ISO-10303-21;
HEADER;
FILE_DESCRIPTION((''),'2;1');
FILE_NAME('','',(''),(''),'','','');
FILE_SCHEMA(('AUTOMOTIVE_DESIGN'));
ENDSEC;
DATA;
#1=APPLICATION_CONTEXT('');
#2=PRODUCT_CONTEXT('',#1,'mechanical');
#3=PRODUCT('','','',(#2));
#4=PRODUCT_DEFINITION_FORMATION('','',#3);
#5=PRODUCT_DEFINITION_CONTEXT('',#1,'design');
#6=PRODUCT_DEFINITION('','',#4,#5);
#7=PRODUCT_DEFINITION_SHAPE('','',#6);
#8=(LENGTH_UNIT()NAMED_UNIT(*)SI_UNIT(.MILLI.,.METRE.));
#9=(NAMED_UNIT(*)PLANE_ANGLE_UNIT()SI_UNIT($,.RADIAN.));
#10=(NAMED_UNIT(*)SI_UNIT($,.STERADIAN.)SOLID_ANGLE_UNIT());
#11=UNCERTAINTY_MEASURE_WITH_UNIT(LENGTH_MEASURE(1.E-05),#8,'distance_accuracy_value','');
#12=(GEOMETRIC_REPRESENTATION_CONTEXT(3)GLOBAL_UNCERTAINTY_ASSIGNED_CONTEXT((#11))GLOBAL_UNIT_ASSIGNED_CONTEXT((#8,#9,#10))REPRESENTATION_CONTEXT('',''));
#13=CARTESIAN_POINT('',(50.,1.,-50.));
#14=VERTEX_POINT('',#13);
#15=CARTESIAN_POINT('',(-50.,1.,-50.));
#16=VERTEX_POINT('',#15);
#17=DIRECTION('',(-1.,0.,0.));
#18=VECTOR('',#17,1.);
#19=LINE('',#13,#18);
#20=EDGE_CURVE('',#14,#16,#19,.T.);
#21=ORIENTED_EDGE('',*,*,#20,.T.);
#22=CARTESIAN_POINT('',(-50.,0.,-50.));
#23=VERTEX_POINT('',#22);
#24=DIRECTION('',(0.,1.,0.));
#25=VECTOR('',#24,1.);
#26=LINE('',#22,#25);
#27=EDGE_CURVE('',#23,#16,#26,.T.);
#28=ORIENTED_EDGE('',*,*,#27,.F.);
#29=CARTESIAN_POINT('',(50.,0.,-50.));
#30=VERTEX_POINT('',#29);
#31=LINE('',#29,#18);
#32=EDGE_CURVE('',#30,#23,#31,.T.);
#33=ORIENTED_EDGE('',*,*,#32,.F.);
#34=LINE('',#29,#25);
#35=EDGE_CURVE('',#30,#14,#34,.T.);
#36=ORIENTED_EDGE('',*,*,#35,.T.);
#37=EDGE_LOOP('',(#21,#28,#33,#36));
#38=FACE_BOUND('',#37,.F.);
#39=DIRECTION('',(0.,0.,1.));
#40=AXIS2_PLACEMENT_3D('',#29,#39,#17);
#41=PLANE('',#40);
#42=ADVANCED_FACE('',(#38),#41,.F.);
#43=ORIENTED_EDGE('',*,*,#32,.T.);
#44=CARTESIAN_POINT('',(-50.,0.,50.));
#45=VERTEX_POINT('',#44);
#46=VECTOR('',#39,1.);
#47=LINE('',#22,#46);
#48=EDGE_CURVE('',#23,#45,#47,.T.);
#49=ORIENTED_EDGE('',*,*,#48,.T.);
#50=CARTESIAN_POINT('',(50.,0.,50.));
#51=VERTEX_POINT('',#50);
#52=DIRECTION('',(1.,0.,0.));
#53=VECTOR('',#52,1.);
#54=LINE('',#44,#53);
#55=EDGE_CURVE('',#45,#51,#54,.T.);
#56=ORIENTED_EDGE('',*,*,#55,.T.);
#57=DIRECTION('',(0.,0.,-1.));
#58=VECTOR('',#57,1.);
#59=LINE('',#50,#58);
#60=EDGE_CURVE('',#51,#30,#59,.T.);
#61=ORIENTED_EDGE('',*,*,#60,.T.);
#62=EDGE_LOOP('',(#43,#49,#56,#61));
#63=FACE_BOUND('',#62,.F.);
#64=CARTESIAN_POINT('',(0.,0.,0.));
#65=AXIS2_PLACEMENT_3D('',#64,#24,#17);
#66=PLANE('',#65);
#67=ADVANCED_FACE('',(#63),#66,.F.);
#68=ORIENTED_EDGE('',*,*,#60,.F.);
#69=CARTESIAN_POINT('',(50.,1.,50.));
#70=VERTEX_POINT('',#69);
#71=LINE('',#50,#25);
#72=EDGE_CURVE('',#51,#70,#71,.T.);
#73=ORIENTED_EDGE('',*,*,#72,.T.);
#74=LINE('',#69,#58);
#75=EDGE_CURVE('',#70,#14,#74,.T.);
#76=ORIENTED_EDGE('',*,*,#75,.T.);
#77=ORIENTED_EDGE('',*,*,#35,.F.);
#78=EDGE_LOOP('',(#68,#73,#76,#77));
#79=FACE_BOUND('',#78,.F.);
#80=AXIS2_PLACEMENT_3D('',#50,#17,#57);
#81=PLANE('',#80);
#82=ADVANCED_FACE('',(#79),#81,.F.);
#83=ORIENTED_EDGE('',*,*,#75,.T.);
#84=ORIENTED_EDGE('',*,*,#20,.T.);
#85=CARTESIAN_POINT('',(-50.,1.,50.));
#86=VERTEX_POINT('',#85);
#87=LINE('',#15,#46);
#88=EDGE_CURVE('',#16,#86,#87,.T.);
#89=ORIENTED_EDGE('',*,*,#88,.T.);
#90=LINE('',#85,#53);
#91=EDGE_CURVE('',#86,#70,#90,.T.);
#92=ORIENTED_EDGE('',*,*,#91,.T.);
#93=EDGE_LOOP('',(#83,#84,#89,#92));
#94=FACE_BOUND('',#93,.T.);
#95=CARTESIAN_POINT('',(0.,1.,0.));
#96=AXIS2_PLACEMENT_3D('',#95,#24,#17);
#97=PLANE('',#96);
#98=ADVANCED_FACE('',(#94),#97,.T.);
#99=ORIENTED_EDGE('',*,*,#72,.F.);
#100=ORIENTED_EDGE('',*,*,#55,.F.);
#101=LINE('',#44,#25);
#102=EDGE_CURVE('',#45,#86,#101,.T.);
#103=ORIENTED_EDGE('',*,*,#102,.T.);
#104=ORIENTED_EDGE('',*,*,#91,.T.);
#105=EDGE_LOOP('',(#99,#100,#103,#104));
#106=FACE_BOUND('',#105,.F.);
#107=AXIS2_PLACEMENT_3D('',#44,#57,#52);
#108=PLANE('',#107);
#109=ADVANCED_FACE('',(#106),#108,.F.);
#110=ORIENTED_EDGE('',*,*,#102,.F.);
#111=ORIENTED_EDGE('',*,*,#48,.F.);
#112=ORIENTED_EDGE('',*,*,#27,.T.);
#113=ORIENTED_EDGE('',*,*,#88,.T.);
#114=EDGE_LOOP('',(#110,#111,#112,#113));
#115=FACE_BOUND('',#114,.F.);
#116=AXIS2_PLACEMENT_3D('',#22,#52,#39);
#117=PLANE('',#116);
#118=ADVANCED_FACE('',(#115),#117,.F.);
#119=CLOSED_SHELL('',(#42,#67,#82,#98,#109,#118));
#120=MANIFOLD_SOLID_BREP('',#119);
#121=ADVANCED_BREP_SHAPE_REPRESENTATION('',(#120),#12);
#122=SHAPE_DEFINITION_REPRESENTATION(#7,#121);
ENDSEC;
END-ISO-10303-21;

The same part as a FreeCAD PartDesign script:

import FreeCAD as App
import Part
import Sketcher

V = App.Vector
Q = App.Units.Quantity


def add_polygon(sketch, points):
    """Adds a closed chain of lines whose ends are joined by coincident constraints."""
    first, n = sketch.GeometryCount, len(points)
    for a, b in zip(points, points[1:] + points[:1]):
        sketch.addGeometry(Part.LineSegment(App.Vector(*a, 0), App.Vector(*b, 0)), False)
    for i in range(n):
        sketch.addConstraint(Sketcher.Constraint("Coincident", first + i, 2, first + (i + 1) % n, 1))

doc = App.newDocument("Part")
body = doc.addObject("PartDesign::Body", "Body")

sketch1 = body.newObject("Sketcher::SketchObject", "Sketch")
sketch1.AttachmentSupport = (doc.getObject("XZ_Plane"), [""])
sketch1.MapMode = "FlatFace"
add_polygon(sketch1, [(-50, -50), (-50, 50), (50, 50), (50, -50)])
sketch1.addConstraint([
    Sketcher.Constraint("Vertical", 0),
    Sketcher.Constraint("Horizontal", 1),
    Sketcher.Constraint("Vertical", 2),
    Sketcher.Constraint("Horizontal", 3),
    Sketcher.Constraint("Symmetric", 0, 2, 2, 2, -1, 1),
    Sketcher.Constraint("Equal", 3, 0),
    Sketcher.Constraint("DistanceX", 1, 1, 1, 2, Q("100 mm")),
])
pad1 = body.newObject("PartDesign::Pad", "Pad")
pad1.Profile = sketch1
pad1.Length = 1
pad1.Reversed = True

doc.recompute()
